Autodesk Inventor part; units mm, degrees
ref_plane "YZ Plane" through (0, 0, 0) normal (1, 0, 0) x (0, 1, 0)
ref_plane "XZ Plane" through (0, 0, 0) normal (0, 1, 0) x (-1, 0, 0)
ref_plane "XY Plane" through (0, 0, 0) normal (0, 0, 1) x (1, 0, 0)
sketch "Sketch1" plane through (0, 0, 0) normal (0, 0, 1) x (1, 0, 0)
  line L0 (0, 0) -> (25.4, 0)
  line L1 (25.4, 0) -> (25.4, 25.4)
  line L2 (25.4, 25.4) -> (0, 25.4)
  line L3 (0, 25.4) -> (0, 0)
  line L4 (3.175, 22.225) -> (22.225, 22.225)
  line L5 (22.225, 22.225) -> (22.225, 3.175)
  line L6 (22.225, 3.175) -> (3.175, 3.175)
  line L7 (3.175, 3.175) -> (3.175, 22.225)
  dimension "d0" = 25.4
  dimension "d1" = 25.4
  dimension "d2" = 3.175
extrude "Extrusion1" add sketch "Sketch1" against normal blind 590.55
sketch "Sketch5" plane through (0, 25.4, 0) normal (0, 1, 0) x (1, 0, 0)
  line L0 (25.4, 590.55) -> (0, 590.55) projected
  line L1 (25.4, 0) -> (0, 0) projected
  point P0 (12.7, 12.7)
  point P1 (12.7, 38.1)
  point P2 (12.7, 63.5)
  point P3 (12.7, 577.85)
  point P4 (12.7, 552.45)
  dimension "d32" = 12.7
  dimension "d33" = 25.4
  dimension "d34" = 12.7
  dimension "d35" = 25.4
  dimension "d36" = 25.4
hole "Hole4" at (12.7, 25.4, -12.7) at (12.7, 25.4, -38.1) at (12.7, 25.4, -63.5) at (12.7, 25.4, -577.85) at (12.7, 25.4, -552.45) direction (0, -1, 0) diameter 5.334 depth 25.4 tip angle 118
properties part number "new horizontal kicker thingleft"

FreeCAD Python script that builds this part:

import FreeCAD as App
import Part
import Sketcher

V = App.Vector
Q = App.Units.Quantity


def add_polygon(sketch, points):
    """Adds a closed chain of lines whose ends are joined by coincident constraints."""
    first, n = sketch.GeometryCount, len(points)
    for a, b in zip(points, points[1:] + points[:1]):
        sketch.addGeometry(Part.LineSegment(App.Vector(*a, 0), App.Vector(*b, 0)), False)
    for i in range(n):
        sketch.addConstraint(Sketcher.Constraint("Coincident", first + i, 2, first + (i + 1) % n, 1))

doc = App.newDocument("Part")
params = doc.addObject("Spreadsheet::Sheet", "Params")
for row, (alias, value) in enumerate([
    ("sketch1_width", "1 in"),
    ("pad1_length", "23.25 in"),
    ("sketch2_diameter", "0.21 in"),
    ("hole_diameter", "0.21 in"),
    ("hole_depth", "1 in"),
], start=1):
    params.set(f"A{row}", alias)
    params.set(f"B{row}", "=" + value)
    params.setAlias(f"B{row}", alias)

body = doc.addObject("PartDesign::Body", "Body")

# Sketch on XY plane
sketch1 = body.newObject("Sketcher::SketchObject", "Sketch")
sketch1.AttachmentSupport = (doc.getObject("XY_Plane"), [""])
sketch1.MapMode = "FlatFace"
add_polygon(sketch1, [(0, 25), (0, 0), (25, 0), (25, 25)])  # lines 0-3
add_polygon(sketch1, [(3, 3), (3, 22), (22, 22), (22, 3)])  # lines 4-7
sketch1.addConstraint(Sketcher.Constraint("Vertical", 0))
sketch1.addConstraint(Sketcher.Constraint("Horizontal", 1))
sketch1.addConstraint(Sketcher.Constraint("Vertical", 2))
sketch1.addConstraint(Sketcher.Constraint("Horizontal", 3))
sketch1.addConstraint(Sketcher.Constraint("Vertical", 4))
sketch1.addConstraint(Sketcher.Constraint("Horizontal", 5))
sketch1.addConstraint(Sketcher.Constraint("Vertical", 6))
sketch1.addConstraint(Sketcher.Constraint("Horizontal", 7))
sketch1.addConstraint(Sketcher.Constraint("Coincident", 0, 2, -1, 1))
sketch1.addConstraint(Sketcher.Constraint("Equal", 3, 0))
sketch1.addConstraint(Sketcher.Constraint("Equal", 7, 4))
sketch1.addConstraint(Sketcher.Constraint("DistanceX", 1, 1, 1, 2, Q("1 in")))
sketch1.addConstraint(Sketcher.Constraint("DistanceX", -1, 1, 4, 2, Q("0.125 in")))
sketch1.addConstraint(Sketcher.Constraint("DistanceY", -1, 1, 6, 2, Q("0.125 in")))
sketch1.addConstraint(Sketcher.Constraint("DistanceY", 4, 2, 3, 2, Q("0.125 in")))
sketch1.setExpression("Constraints[19]", "Params.sketch1_width")
pad1 = body.newObject("PartDesign::Pad", "Pad")
pad1.Profile = sketch1
pad1.setExpression("Length", "Params.pad1_length")
pad1.Reversed = True

# Sketch on XZ plane
sketch2 = body.newObject("Sketcher::SketchObject", "Sketch001")
sketch2.AttachmentSupport = (doc.getObject("XZ_Plane"), [""])
sketch2.MapMode = "FlatFace"
sketch2.AttachmentOffset = App.Placement(V(0, 0, -1 * 25.4), App.Rotation())
sketch2.addGeometry(Part.Circle(V(12.7, -12.7, 0), V(0, 0, 1), 2.7), False)
sketch2.addGeometry(Part.Circle(V(12.7, -38.1, 0), V(0, 0, 1), 2.7), False)
sketch2.addGeometry(Part.Circle(V(12.7, -63.5, 0), V(0, 0, 1), 2.7), False)
sketch2.addGeometry(Part.Circle(V(12.7, -577.9, 0), V(0, 0, 1), 2.7), False)
sketch2.addGeometry(Part.Circle(V(12.7, -552.5, 0), V(0, 0, 1), 2.7), False)
sketch2.addConstraint(Sketcher.Constraint("Equal", 0, 1))
sketch2.addConstraint(Sketcher.Constraint("Equal", 1, 2))
sketch2.addConstraint(Sketcher.Constraint("Equal", 2, 3))
sketch2.addConstraint(Sketcher.Constraint("Equal", 3, 4))
sketch2.addConstraint(Sketcher.Constraint("Vertical", 0, 3, 1, 3))
sketch2.addConstraint(Sketcher.Constraint("Vertical", 1, 3, 2, 3))
sketch2.addConstraint(Sketcher.Constraint("Vertical", 2, 3, 3, 3))
sketch2.addConstraint(Sketcher.Constraint("Vertical", 3, 3, 4, 3))
sketch2.addConstraint(Sketcher.Constraint("Diameter", 0, Q("0.21 in")))
sketch2.addConstraint(Sketcher.Constraint("DistanceY", 1, 3, 0, 3, Q("1 in")))
sketch2.addConstraint(Sketcher.Constraint("DistanceY", 2, 3, 1, 3, Q("1 in")))
sketch2.addConstraint(Sketcher.Constraint("DistanceY", 3, 3, 4, 3, Q("1 in")))
sketch2.addConstraint(Sketcher.Constraint("DistanceX", -1, 1, 0, 3, Q("0.5 in")))
sketch2.addConstraint(Sketcher.Constraint("DistanceY", 0, 3, -1, 1, Q("0.5 in")))
sketch2.addConstraint(Sketcher.Constraint("DistanceY", 3, 3, -1, 1, Q("22.75 in")))
sketch2.setExpression("Constraints[8]", "Params.sketch2_diameter")
doc.recompute()
hole = body.newObject("PartDesign::Hole", "Hole")
hole.Profile = sketch2
hole.ThreadType = "None"
hole.setExpression("Diameter", "Params.hole_diameter")
hole.DepthType = "Dimension"
hole.setExpression("Depth", "Params.hole_depth")
hole.DrillPoint = "Angled"
hole.DrillPointAngle = 118
hole.Reversed = True

doc.recompute()
